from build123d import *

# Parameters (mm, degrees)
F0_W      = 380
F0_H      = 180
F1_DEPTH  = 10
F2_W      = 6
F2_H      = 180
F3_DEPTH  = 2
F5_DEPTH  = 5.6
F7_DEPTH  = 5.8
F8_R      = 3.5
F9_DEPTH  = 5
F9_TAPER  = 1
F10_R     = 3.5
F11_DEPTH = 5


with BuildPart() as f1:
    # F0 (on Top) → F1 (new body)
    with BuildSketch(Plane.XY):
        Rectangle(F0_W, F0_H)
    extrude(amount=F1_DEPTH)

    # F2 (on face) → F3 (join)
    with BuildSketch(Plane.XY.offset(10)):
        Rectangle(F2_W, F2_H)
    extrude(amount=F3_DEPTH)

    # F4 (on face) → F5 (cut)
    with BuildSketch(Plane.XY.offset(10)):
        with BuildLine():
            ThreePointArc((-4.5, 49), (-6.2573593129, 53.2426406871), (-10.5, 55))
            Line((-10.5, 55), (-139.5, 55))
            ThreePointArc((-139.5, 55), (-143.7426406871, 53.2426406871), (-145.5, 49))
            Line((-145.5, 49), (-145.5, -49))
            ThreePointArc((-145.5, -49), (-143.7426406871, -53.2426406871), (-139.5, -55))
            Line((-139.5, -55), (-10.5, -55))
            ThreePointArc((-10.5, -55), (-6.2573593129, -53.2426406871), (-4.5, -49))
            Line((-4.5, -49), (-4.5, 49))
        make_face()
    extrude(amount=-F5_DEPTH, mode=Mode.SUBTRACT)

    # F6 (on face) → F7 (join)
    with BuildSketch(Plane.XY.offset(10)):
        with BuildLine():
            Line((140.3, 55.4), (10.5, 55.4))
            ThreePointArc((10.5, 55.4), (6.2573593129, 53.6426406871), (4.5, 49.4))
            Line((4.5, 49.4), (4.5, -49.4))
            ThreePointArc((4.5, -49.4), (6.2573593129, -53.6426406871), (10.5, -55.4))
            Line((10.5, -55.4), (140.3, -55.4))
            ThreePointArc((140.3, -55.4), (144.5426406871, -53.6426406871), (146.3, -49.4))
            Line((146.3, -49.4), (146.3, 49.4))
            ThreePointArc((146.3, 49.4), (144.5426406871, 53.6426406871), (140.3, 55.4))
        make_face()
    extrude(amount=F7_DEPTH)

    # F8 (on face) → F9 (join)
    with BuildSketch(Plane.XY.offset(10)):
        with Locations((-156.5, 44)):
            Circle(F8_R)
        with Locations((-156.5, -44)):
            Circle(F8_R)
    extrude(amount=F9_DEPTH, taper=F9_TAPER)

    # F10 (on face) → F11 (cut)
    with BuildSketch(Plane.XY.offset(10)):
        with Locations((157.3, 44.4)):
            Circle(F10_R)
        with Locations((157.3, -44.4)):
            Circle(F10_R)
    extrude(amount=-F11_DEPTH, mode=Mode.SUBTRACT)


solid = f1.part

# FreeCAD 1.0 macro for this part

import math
import FreeCAD as App
import Part
import Sketcher
from FreeCAD import Vector
Q = App.Units.Quantity

doc = App.newDocument("Part")
params = doc.addObject("Spreadsheet::Sheet", "Params")
for row, (alias, value) in enumerate([
    ("sketch1_width", "380 mm"),
    ("sketch1_height", "180 mm"),
    ("pad1_length", "10 mm"),
    ("sketch2_width", "6 mm"),
    ("sketch2_height", "180 mm"),
    ("pad2_length", "2 mm"),
    ("sketch3_radius", "6 mm"),
    ("sketch3_width", "129 mm"),
    ("sketch3_height", "98 mm"),
    ("pocket1_length", "5.6 mm"),
    ("sketch4_radius", "6 mm"),
    ("sketch4_width", "129.8 mm"),
    ("sketch4_height", "98.8 mm"),
    ("pad3_length", "5.8 mm"),
    ("sketch5_diameter", "7 mm"),
    ("pad4_length", "5 mm"),
    ("pad4_taper", "-1 deg"),
    ("sketch6_diameter", "7 mm"),
    ("pocket2_length", "5 mm"),
], start=1):
    params.set(f"A{row}", alias)
    params.set(f"B{row}", "=" + value)
    params.setAlias(f"B{row}", alias)

body = doc.addObject("PartDesign::Body", "Body")

# Sketch on XY plane
sketch1 = body.newObject("Sketcher::SketchObject", "Sketch")
sketch1.AttachmentSupport = (doc.getObject("XY_Plane"), [""])
sketch1.MapMode = "FlatFace"
sketch1.addGeometry(Part.LineSegment(Vector(-190, 90, 0), Vector(-190, -90, 0)), False)
sketch1.addGeometry(Part.LineSegment(Vector(-190, -90, 0), Vector(190, -90, 0)), False)
sketch1.addGeometry(Part.LineSegment(Vector(190, -90, 0), Vector(190, 90, 0)), False)
sketch1.addGeometry(Part.LineSegment(Vector(190, 90, 0), Vector(-190, 90, 0)), False)
sketch1.addConstraint(Sketcher.Constraint("Coincident", 0, 2, 1, 1))
sketch1.addConstraint(Sketcher.Constraint("Coincident", 1, 2, 2, 1))
sketch1.addConstraint(Sketcher.Constraint("Coincident", 2, 2, 3, 1))
sketch1.addConstraint(Sketcher.Constraint("Coincident", 3, 2, 0, 1))
sketch1.addConstraint(Sketcher.Constraint("Vertical", 0))
sketch1.addConstraint(Sketcher.Constraint("Horizontal", 1))
sketch1.addConstraint(Sketcher.Constraint("Vertical", 2))
sketch1.addConstraint(Sketcher.Constraint("Horizontal", 3))
sketch1.addConstraint(Sketcher.Constraint("Symmetric", 0, 2, 2, 2, -1, 1))
sketch1.addConstraint(Sketcher.Constraint("DistanceX", 1, 1, 1, 2, Q("380 mm")))
sketch1.addConstraint(Sketcher.Constraint("DistanceY", 0, 2, 0, 1, Q("180 mm")))
sketch1.setExpression("Constraints[9]", "Params.sketch1_width")
sketch1.setExpression("Constraints[10]", "Params.sketch1_height")
pad1 = body.newObject("PartDesign::Pad", "Pad")
pad1.Profile = sketch1
pad1.setExpression("Length", "Params.pad1_length")

# Sketch on XY plane
sketch2 = body.newObject("Sketcher::SketchObject", "Sketch001")
sketch2.AttachmentSupport = (doc.getObject("XY_Plane"), [""])
sketch2.MapMode = "FlatFace"
sketch2.AttachmentOffset = App.Placement(Vector(0, 0, 10), App.Rotation())
sketch2.addGeometry(Part.LineSegment(Vector(-3, 90, 0), Vector(-3, -90, 0)), False)
sketch2.addGeometry(Part.LineSegment(Vector(-3, -90, 0), Vector(3, -90, 0)), False)
sketch2.addGeometry(Part.LineSegment(Vector(3, -90, 0), Vector(3, 90, 0)), False)
sketch2.addGeometry(Part.LineSegment(Vector(3, 90, 0), Vector(-3, 90, 0)), False)
sketch2.addConstraint(Sketcher.Constraint("Coincident", 0, 2, 1, 1))
sketch2.addConstraint(Sketcher.Constraint("Coincident", 1, 2, 2, 1))
sketch2.addConstraint(Sketcher.Constraint("Coincident", 2, 2, 3, 1))
sketch2.addConstraint(Sketcher.Constraint("Coincident", 3, 2, 0, 1))
sketch2.addConstraint(Sketcher.Constraint("Vertical", 0))
sketch2.addConstraint(Sketcher.Constraint("Horizontal", 1))
sketch2.addConstraint(Sketcher.Constraint("Vertical", 2))
sketch2.addConstraint(Sketcher.Constraint("Horizontal", 3))
sketch2.addConstraint(Sketcher.Constraint("Symmetric", 0, 2, 2, 2, -1, 1))
sketch2.addConstraint(Sketcher.Constraint("DistanceX", 1, 1, 1, 2, Q("6 mm")))
sketch2.addConstraint(Sketcher.Constraint("DistanceY", 0, 2, 0, 1, Q("180 mm")))
sketch2.setExpression("Constraints[9]", "Params.sketch2_width")
sketch2.setExpression("Constraints[10]", "Params.sketch2_height")
pad2 = body.newObject("PartDesign::Pad", "Pad001")
pad2.Profile = sketch2
pad2.setExpression("Length", "Params.pad2_length")

# Sketch on XY plane
sketch3 = body.newObject("Sketcher::SketchObject", "Sketch002")
sketch3.AttachmentSupport = (doc.getObject("XY_Plane"), [""])
sketch3.MapMode = "FlatFace"
sketch3.AttachmentOffset = App.Placement(Vector(0, 0, 10), App.Rotation())
sketch3.addGeometry(Part.ArcOfCircle(Part.Circle(Vector(-10.5, 49, 0), Vector(0, 0, 1), 6), math.radians(0), math.radians(90)), False)
sketch3.addGeometry(Part.LineSegment(Vector(-10.5, 55, 0), Vector(-139.5, 55, 0)), False)
sketch3.addGeometry(Part.ArcOfCircle(Part.Circle(Vector(-139.5, 49, 0), Vector(0, 0, 1), 6), math.radians(90), math.radians(180)), False)
sketch3.addGeometry(Part.LineSegment(Vector(-145.5, 49, 0), Vector(-145.5, -49, 0)), False)
sketch3.addGeometry(Part.ArcOfCircle(Part.Circle(Vector(-139.5, -49, 0), Vector(0, 0, 1), 6), math.radians(180), math.radians(270)), False)
sketch3.addGeometry(Part.LineSegment(Vector(-139.5, -55, 0), Vector(-10.5, -55, 0)), False)
sketch3.addGeometry(Part.ArcOfCircle(Part.Circle(Vector(-10.5, -49, 0), Vector(0, 0, 1), 6), math.radians(-90), math.radians(0)), False)
sketch3.addGeometry(Part.LineSegment(Vector(-4.5, -49, 0), Vector(-4.5, 49, 0)), False)
sketch3.addConstraint(Sketcher.Constraint("Tangent", 0, 2, 1, 1))
sketch3.addConstraint(Sketcher.Constraint("Tangent", 1, 2, 2, 1))
sketch3.addConstraint(Sketcher.Constraint("Tangent", 2, 2, 3, 1))
sketch3.addConstraint(Sketcher.Constraint("Tangent", 3, 2, 4, 1))
sketch3.addConstraint(Sketcher.Constraint("Tangent", 4, 2, 5, 1))
sketch3.addConstraint(Sketcher.Constraint("Tangent", 5, 2, 6, 1))
sketch3.addConstraint(Sketcher.Constraint("Tangent", 6, 2, 7, 1))
sketch3.addConstraint(Sketcher.Constraint("Tangent", 7, 2, 0, 1))
sketch3.addConstraint(Sketcher.Constraint("Horizontal", 1))
sketch3.addConstraint(Sketcher.Constraint("Vertical", 3))
sketch3.addConstraint(Sketcher.Constraint("Horizontal", 5))
sketch3.addConstraint(Sketcher.Constraint("Vertical", 7))
sketch3.addConstraint(Sketcher.Constraint("Equal", 0, 2))
sketch3.addConstraint(Sketcher.Constraint("Equal", 2, 4))
sketch3.addConstraint(Sketcher.Constraint("Equal", 4, 6))
sketch3.addConstraint(Sketcher.Constraint("Radius", 0, Q("6 mm")))
sketch3.addConstraint(Sketcher.Constraint("DistanceX", 1, 2, 1, 1, Q("129 mm")))
sketch3.addConstraint(Sketcher.Constraint("DistanceY", 3, 2, 3, 1, Q("98 mm")))
sketch3.addConstraint(Sketcher.Constraint("DistanceY", -1, 1, 0, 3, Q("49 mm")))
sketch3.addConstraint(Sketcher.Constraint("DistanceX", 0, 3, -1, 1, Q("10.5 mm")))
sketch3.setExpression("Constraints[15]", "Params.sketch3_radius")
sketch3.setExpression("Constraints[16]", "Params.sketch3_width")
sketch3.setExpression("Constraints[17]", "Params.sketch3_height")
pocket1 = body.newObject("PartDesign::Pocket", "Pocket")
pocket1.Profile = sketch3
pocket1.setExpression("Length", "Params.pocket1_length")

# Sketch on XY plane
sketch4 = body.newObject("Sketcher::SketchObject", "Sketch003")
sketch4.AttachmentSupport = (doc.getObject("XY_Plane"), [""])
sketch4.MapMode = "FlatFace"
sketch4.AttachmentOffset = App.Placement(Vector(0, 0, 10), App.Rotation())
sketch4.addGeometry(Part.LineSegment(Vector(140.3, 55.4, 0), Vector(10.5, 55.4, 0)), False)
sketch4.addGeometry(Part.ArcOfCircle(Part.Circle(Vector(10.5, 49.4, 0), Vector(0, 0, 1), 6), math.radians(90), math.radians(180)), False)
sketch4.addGeometry(Part.LineSegment(Vector(4.5, 49.4, 0), Vector(4.5, -49.4, 0)), False)
sketch4.addGeometry(Part.ArcOfCircle(Part.Circle(Vector(10.5, -49.4, 0), Vector(0, 0, 1), 6), math.radians(180), math.radians(270)), False)
sketch4.addGeometry(Part.LineSegment(Vector(10.5, -55.4, 0), Vector(140.3, -55.4, 0)), False)
sketch4.addGeometry(Part.ArcOfCircle(Part.Circle(Vector(140.3, -49.4, 0), Vector(0, 0, 1), 6), math.radians(-90), math.radians(0)), False)
sketch4.addGeometry(Part.LineSegment(Vector(146.3, -49.4, 0), Vector(146.3, 49.4, 0)), False)
sketch4.addGeometry(Part.ArcOfCircle(Part.Circle(Vector(140.3, 49.4, 0), Vector(0, 0, 1), 6), math.radians(0), math.radians(90)), False)
sketch4.addConstraint(Sketcher.Constraint("Tangent", 0, 2, 1, 1))
sketch4.addConstraint(Sketcher.Constraint("Tangent", 1, 2, 2, 1))
sketch4.addConstraint(Sketcher.Constraint("Tangent", 2, 2, 3, 1))
sketch4.addConstraint(Sketcher.Constraint("Tangent", 3, 2, 4, 1))
sketch4.addConstraint(Sketcher.Constraint("Tangent", 4, 2, 5, 1))
sketch4.addConstraint(Sketcher.Constraint("Tangent", 5, 2, 6, 1))
sketch4.addConstraint(Sketcher.Constraint("Tangent", 6, 2, 7, 1))
sketch4.addConstraint(Sketcher.Constraint("Tangent", 7, 2, 0, 1))
sketch4.addConstraint(Sketcher.Constraint("Horizontal", 0))
sketch4.addConstraint(Sketcher.Constraint("Vertical", 2))
sketch4.addConstraint(Sketcher.Constraint("Horizontal", 4))
sketch4.addConstraint(Sketcher.Constraint("Vertical", 6))
sketch4.addConstraint(Sketcher.Constraint("Equal", 1, 3))
sketch4.addConstraint(Sketcher.Constraint("Equal", 3, 5))
sketch4.addConstraint(Sketcher.Constraint("Equal", 5, 7))
sketch4.addConstraint(Sketcher.Constraint("Radius", 1, Q("6 mm")))
sketch4.addConstraint(Sketcher.Constraint("DistanceX", 0, 2, 0, 1, Q("129.8 mm")))
sketch4.addConstraint(Sketcher.Constraint("DistanceY", 2, 2, 2, 1, Q("98.8 mm")))
sketch4.addConstraint(Sketcher.Constraint("DistanceX", -1, 1, 1, 3, Q("10.5 mm")))
sketch4.addConstraint(Sketcher.Constraint("DistanceY", -1, 1, 1, 3, Q("49.4 mm")))
sketch4.setExpression("Constraints[15]", "Params.sketch4_radius")
sketch4.setExpression("Constraints[16]", "Params.sketch4_width")
sketch4.setExpression("Constraints[17]", "Params.sketch4_height")
pad3 = body.newObject("PartDesign::Pad", "Pad002")
pad3.Profile = sketch4
pad3.setExpression("Length", "Params.pad3_length")

# Sketch on XY plane
sketch5 = body.newObject("Sketcher::SketchObject", "Sketch004")
sketch5.AttachmentSupport = (doc.getObject("XY_Plane"), [""])
sketch5.MapMode = "FlatFace"
sketch5.AttachmentOffset = App.Placement(Vector(0, 0, 10), App.Rotation())
sketch5.addGeometry(Part.Circle(Vector(-156.5, 44, 0), Vector(0, 0, 1), 3.5), False)
sketch5.addGeometry(Part.Circle(Vector(-156.5, -44, 0), Vector(0, 0, 1), 3.5), False)
sketch5.addConstraint(Sketcher.Constraint("Equal", 0, 1))
sketch5.addConstraint(Sketcher.Constraint("Symmetric", 0, 3, 1, 3, -1))
sketch5.addConstraint(Sketcher.Constraint("Diameter", 0, Q("7 mm")))
sketch5.addConstraint(Sketcher.Constraint("DistanceY", -1, 1, 0, 3, Q("44 mm")))
sketch5.addConstraint(Sketcher.Constraint("DistanceX", 0, 3, -1, 1, Q("156.5 mm")))
sketch5.setExpression("Constraints[2]", "Params.sketch5_diameter")
pad4 = body.newObject("PartDesign::Pad", "Pad003")
pad4.Profile = sketch5
pad4.setExpression("Length", "Params.pad4_length")
pad4.setExpression("TaperAngle", "Params.pad4_taper")

# Sketch on XY plane
sketch6 = body.newObject("Sketcher::SketchObject", "Sketch005")
sketch6.AttachmentSupport = (doc.getObject("XY_Plane"), [""])
sketch6.MapMode = "FlatFace"
sketch6.AttachmentOffset = App.Placement(Vector(0, 0, 10), App.Rotation())
sketch6.addGeometry(Part.Circle(Vector(157.3, 44.4, 0), Vector(0, 0, 1), 3.5), False)
sketch6.addGeometry(Part.Circle(Vector(157.3, -44.4, 0), Vector(0, 0, 1), 3.5), False)
sketch6.addConstraint(Sketcher.Constraint("Equal", 0, 1))
sketch6.addConstraint(Sketcher.Constraint("Symmetric", 0, 3, 1, 3, -1))
sketch6.addConstraint(Sketcher.Constraint("Diameter", 0, Q("7 mm")))
sketch6.addConstraint(Sketcher.Constraint("DistanceX", -1, 1, 0, 3, Q("157.3 mm")))
sketch6.addConstraint(Sketcher.Constraint("DistanceY", -1, 1, 0, 3, Q("44.4 mm")))
sketch6.setExpression("Constraints[2]", "Params.sketch6_diameter")
pocket2 = body.newObject("PartDesign::Pocket", "Pocket001")
pocket2.Profile = sketch6
pocket2.setExpression("Length", "Params.pocket2_length")

doc.recompute()
